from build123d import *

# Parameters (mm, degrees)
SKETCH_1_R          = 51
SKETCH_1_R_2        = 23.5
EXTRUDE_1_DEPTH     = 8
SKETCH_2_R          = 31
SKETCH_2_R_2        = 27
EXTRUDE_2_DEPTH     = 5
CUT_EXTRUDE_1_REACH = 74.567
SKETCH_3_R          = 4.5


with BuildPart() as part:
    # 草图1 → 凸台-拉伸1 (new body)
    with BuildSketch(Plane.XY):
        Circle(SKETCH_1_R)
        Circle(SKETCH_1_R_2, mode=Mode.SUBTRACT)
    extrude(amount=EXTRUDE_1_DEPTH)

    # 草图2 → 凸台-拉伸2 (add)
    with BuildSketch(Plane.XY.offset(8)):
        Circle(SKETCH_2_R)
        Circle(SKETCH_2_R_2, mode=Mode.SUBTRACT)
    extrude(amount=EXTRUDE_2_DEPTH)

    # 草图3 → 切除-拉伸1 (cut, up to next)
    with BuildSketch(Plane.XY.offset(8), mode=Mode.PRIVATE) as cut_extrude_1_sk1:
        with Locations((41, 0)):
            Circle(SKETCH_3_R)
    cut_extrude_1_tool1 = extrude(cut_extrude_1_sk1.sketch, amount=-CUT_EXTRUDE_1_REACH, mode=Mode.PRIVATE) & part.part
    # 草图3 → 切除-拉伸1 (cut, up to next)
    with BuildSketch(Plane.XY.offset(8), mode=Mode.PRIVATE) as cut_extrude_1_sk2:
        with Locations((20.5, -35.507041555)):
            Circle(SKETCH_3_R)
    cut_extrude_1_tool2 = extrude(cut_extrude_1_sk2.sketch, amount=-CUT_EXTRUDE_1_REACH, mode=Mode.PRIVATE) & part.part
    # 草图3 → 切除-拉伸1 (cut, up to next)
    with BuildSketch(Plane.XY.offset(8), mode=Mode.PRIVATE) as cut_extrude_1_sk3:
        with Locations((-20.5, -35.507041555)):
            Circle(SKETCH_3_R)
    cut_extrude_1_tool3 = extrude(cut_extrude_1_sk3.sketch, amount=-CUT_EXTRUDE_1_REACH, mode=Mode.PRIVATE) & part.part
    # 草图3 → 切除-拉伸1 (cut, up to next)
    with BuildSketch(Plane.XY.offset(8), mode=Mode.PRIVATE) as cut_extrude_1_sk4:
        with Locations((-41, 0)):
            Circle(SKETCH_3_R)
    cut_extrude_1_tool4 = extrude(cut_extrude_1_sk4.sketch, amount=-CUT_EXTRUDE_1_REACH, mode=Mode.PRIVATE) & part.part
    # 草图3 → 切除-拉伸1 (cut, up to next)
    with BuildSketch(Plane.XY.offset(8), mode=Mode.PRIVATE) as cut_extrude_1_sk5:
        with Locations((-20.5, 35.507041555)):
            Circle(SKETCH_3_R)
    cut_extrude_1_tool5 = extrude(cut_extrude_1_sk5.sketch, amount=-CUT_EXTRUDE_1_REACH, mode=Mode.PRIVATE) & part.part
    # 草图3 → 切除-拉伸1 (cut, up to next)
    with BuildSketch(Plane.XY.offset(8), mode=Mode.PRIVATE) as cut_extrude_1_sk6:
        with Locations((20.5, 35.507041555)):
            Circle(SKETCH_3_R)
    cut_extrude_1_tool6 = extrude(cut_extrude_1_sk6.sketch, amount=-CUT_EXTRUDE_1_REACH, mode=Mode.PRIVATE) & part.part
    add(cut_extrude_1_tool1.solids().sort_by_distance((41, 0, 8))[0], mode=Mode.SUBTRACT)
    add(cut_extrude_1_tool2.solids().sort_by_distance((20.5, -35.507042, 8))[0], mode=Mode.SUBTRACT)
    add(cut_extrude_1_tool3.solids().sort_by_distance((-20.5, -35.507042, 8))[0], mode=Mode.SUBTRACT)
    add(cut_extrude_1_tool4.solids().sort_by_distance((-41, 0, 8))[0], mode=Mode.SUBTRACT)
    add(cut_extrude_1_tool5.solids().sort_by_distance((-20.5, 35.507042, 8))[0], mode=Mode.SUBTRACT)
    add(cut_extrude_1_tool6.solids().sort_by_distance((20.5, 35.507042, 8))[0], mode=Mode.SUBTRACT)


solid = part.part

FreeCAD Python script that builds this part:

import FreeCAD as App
import Part
import Sketcher

V = App.Vector

doc = App.newDocument("Part")
body = doc.addObject("PartDesign::Body", "Body")

# Sketch on XY plane
sketch1 = body.newObject("Sketcher::SketchObject", "Sketch")
sketch1.AttachmentSupport = (doc.getObject("XY_Plane"), [""])
sketch1.MapMode = "FlatFace"
sketch1.addGeometry([
    Part.Circle(V(0, 0, 0), V(0, 0, 1), 51),
    Part.Circle(V(0, 0, 0), V(0, 0, 1), 24),
], False)
sketch1.addConstraint([
    Sketcher.Constraint("Coincident", 0, 3, -1, 1),
    Sketcher.Constraint("Coincident", 1, 3, -1, 1),
    Sketcher.Constraint("Diameter", 0, 102.0),
    Sketcher.Constraint("Diameter", 1, 47.0),
])
pad1 = body.newObject("PartDesign::Pad", "Pad")
pad1.Profile = sketch1
pad1.Length = 8

# Sketch on XY plane
sketch2 = body.newObject("Sketcher::SketchObject", "Sketch001")
sketch2.AttachmentSupport = (doc.getObject("XY_Plane"), [""])
sketch2.MapMode = "FlatFace"
sketch2.AttachmentOffset = App.Placement(V(0, 0, 8), App.Rotation())
sketch2.addGeometry([
    Part.Circle(V(0, 0, 0), V(0, 0, 1), 31),
    Part.Circle(V(0, 0, 0), V(0, 0, 1), 27),
], False)
sketch2.addConstraint([
    Sketcher.Constraint("Coincident", 0, 3, -1, 1),
    Sketcher.Constraint("Coincident", 1, 3, -1, 1),
    Sketcher.Constraint("Diameter", 0, 62.0),
    Sketcher.Constraint("Diameter", 1, 54.0),
])
pad2 = body.newObject("PartDesign::Pad", "Pad001")
pad2.Profile = sketch2
pad2.Length = 5

# Sketch on XY plane
sketch3 = body.newObject("Sketcher::SketchObject", "Sketch002")
sketch3.AttachmentSupport = (doc.getObject("XY_Plane"), [""])
sketch3.MapMode = "FlatFace"
sketch3.AttachmentOffset = App.Placement(V(0, 0, 8), App.Rotation())
sketch3.addGeometry(Part.Circle(V(41, 0, 0), V(0, 0, 1), 4.5), False)
sketch3.addConstraint([
    Sketcher.Constraint("PointOnObject", 0, 3, -1),
    Sketcher.Constraint("Diameter", 0, 9.0),
    Sketcher.Constraint("DistanceX", -1, 1, 0, 3, 41.0),
])
pocket1 = body.newObject("PartDesign::Pocket", "Pocket")
pocket1.Profile = sketch3
pocket1.Type = "UpToFirst"

# Sketch on XY plane
sketch4 = body.newObject("Sketcher::SketchObject", "Sketch003")
sketch4.AttachmentSupport = (doc.getObject("XY_Plane"), [""])
sketch4.MapMode = "FlatFace"
sketch4.AttachmentOffset = App.Placement(V(0, 0, 8), App.Rotation())
sketch4.addGeometry(Part.Circle(V(20.5, -35.5, 0), V(0, 0, 1), 4.5), False)
sketch4.addConstraint([
    Sketcher.Constraint("Diameter", 0, 9.0),
    Sketcher.Constraint("DistanceX", -1, 1, 0, 3, 20.5),
    Sketcher.Constraint("DistanceY", 0, 3, -1, 1, 35.507042),
])
pocket2 = body.newObject("PartDesign::Pocket", "Pocket001")
pocket2.Profile = sketch4
pocket2.Type = "UpToFirst"

# Sketch on XY plane
sketch5 = body.newObject("Sketcher::SketchObject", "Sketch004")
sketch5.AttachmentSupport = (doc.getObject("XY_Plane"), [""])
sketch5.MapMode = "FlatFace"
sketch5.AttachmentOffset = App.Placement(V(0, 0, 8), App.Rotation())
sketch5.addGeometry(Part.Circle(V(-20.5, -35.5, 0), V(0, 0, 1), 4.5), False)
sketch5.addConstraint([
    Sketcher.Constraint("Diameter", 0, 9.0),
    Sketcher.Constraint("DistanceX", 0, 3, -1, 1, 20.5),
    Sketcher.Constraint("DistanceY", 0, 3, -1, 1, 35.507042),
])
pocket3 = body.newObject("PartDesign::Pocket", "Pocket002")
pocket3.Profile = sketch5
pocket3.Type = "UpToFirst"

# Sketch on XY plane
sketch6 = body.newObject("Sketcher::SketchObject", "Sketch005")
sketch6.AttachmentSupport = (doc.getObject("XY_Plane"), [""])
sketch6.MapMode = "FlatFace"
sketch6.AttachmentOffset = App.Placement(V(0, 0, 8), App.Rotation())
sketch6.addGeometry(Part.Circle(V(-41, 0, 0), V(0, 0, 1), 4.5), False)
sketch6.addConstraint([
    Sketcher.Constraint("PointOnObject", 0, 3, -1),
    Sketcher.Constraint("Diameter", 0, 9.0),
    Sketcher.Constraint("DistanceX", 0, 3, -1, 1, 41.0),
])
pocket4 = body.newObject("PartDesign::Pocket", "Pocket003")
pocket4.Profile = sketch6
pocket4.Type = "UpToFirst"

# Sketch on XY plane
sketch7 = body.newObject("Sketcher::SketchObject", "Sketch006")
sketch7.AttachmentSupport = (doc.getObject("XY_Plane"), [""])
sketch7.MapMode = "FlatFace"
sketch7.AttachmentOffset = App.Placement(V(0, 0, 8), App.Rotation())
sketch7.addGeometry(Part.Circle(V(-20.5, 35.5, 0), V(0, 0, 1), 4.5), False)
sketch7.addConstraint([
    Sketcher.Constraint("Diameter", 0, 9.0),
    Sketcher.Constraint("DistanceX", 0, 3, -1, 1, 20.5),
    Sketcher.Constraint("DistanceY", -1, 1, 0, 3, 35.507042),
])
pocket5 = body.newObject("PartDesign::Pocket", "Pocket004")
pocket5.Profile = sketch7
pocket5.Type = "UpToFirst"

# Sketch on XY plane
sketch8 = body.newObject("Sketcher::SketchObject", "Sketch007")
sketch8.AttachmentSupport = (doc.getObject("XY_Plane"), [""])
sketch8.MapMode = "FlatFace"
sketch8.AttachmentOffset = App.Placement(V(0, 0, 8), App.Rotation())
sketch8.addGeometry(Part.Circle(V(20.5, 35.5, 0), V(0, 0, 1), 4.5), False)
sketch8.addConstraint([
    Sketcher.Constraint("Diameter", 0, 9.0),
    Sketcher.Constraint("DistanceX", -1, 1, 0, 3, 20.5),
    Sketcher.Constraint("DistanceY", -1, 1, 0, 3, 35.507042),
])
pocket6 = body.newObject("PartDesign::Pocket", "Pocket005")
pocket6.Profile = sketch8
pocket6.Type = "UpToFirst"

doc.recompute()
